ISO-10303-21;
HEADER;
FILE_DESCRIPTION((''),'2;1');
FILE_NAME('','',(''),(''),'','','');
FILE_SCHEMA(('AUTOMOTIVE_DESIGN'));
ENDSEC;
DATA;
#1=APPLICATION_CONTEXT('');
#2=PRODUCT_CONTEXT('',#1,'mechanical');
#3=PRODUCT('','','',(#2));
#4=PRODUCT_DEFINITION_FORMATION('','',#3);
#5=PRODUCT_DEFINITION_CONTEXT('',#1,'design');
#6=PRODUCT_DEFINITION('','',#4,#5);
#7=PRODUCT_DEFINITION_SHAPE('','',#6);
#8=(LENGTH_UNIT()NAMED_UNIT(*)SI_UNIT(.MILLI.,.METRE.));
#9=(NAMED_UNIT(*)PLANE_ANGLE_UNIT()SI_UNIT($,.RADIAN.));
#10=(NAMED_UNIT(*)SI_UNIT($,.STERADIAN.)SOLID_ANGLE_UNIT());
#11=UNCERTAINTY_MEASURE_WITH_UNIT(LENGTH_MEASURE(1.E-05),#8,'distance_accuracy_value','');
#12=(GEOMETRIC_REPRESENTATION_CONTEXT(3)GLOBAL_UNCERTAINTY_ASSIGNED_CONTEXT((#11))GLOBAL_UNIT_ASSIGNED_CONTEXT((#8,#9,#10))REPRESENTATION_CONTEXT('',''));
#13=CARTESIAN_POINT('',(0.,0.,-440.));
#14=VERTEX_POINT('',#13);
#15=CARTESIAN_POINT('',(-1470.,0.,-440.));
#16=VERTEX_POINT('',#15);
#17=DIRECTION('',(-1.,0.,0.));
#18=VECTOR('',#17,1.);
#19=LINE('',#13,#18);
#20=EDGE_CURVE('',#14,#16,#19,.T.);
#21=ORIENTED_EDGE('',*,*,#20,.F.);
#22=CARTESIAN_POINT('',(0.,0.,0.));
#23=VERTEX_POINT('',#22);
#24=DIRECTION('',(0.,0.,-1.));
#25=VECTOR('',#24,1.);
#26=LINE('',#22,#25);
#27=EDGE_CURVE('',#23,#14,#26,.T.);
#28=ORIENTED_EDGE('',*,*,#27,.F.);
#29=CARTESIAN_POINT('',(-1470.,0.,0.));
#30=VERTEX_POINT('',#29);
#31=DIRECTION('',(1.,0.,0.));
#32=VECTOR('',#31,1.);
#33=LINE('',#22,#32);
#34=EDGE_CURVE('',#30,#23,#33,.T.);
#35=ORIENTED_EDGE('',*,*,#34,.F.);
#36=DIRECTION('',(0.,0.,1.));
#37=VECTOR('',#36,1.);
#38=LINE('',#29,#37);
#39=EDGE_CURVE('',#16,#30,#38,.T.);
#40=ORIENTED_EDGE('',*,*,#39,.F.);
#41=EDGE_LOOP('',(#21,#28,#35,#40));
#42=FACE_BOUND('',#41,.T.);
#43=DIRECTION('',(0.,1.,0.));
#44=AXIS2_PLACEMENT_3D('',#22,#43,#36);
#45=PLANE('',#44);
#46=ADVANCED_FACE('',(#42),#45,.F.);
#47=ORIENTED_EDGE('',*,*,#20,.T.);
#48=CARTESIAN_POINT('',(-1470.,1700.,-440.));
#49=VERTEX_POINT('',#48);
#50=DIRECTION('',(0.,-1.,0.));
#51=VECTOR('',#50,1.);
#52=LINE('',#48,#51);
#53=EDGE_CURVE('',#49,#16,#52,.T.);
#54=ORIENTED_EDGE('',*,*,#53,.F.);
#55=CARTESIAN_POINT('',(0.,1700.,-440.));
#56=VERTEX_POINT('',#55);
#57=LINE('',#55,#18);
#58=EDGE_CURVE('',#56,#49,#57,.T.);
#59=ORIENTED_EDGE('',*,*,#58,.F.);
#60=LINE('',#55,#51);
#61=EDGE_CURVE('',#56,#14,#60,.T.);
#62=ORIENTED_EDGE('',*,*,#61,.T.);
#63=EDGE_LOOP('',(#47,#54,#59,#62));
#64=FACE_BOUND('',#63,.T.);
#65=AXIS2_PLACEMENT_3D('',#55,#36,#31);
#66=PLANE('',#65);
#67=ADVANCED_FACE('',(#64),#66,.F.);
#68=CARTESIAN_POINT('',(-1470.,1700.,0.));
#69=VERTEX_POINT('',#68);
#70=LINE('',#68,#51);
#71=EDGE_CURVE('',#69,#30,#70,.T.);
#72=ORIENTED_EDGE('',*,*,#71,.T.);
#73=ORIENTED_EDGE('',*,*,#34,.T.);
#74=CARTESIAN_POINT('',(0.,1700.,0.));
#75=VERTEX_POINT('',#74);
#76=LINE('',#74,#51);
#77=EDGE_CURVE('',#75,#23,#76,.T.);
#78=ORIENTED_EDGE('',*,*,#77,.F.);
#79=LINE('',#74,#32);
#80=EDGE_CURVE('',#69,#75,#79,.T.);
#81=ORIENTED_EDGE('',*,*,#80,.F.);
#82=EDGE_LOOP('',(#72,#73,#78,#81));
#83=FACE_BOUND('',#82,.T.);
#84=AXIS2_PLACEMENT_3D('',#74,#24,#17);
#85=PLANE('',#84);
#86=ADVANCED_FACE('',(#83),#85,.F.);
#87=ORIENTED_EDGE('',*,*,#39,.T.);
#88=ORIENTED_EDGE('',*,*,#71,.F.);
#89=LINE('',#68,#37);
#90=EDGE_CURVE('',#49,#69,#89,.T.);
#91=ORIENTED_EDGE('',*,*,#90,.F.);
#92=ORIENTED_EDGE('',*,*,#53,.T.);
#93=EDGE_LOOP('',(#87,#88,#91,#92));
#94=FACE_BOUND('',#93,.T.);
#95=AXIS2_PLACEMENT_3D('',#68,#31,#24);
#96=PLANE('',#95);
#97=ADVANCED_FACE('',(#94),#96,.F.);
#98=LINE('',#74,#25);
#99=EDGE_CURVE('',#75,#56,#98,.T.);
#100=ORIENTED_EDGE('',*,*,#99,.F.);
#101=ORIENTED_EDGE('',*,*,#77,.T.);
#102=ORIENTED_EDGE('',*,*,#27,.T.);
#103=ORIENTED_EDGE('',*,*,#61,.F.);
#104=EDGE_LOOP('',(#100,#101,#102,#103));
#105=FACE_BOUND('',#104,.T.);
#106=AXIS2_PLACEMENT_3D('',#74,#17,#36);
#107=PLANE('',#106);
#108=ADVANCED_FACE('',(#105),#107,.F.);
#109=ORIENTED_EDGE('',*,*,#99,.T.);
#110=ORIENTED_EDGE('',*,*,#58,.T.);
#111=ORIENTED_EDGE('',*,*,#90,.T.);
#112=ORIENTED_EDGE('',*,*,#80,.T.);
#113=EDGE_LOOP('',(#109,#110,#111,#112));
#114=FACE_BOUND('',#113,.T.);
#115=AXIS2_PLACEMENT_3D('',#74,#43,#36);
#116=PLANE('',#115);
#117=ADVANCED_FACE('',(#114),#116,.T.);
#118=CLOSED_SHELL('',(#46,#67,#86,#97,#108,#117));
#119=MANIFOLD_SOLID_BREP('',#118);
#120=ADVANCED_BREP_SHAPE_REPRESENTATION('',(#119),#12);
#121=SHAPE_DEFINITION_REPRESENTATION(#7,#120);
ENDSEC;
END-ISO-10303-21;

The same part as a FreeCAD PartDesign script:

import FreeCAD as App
import Part
import Sketcher
from FreeCAD import Vector
Q = App.Units.Quantity

doc = App.newDocument("Part")
body = doc.addObject("PartDesign::Body", "Body")

sketch1 = doc.addObject("Sketcher::SketchObject", "Sketch")
body.addObject(sketch1)
sketch1.AttachmentSupport = (doc.XZ_Plane, [""])
sketch1.MapMode = "FlatFace"
sketch1.addGeometry(Part.LineSegment(Vector(-1470, -440, 0), Vector(-1470, 0, 0)), False)
sketch1.addGeometry(Part.LineSegment(Vector(-1470, 0, 0), Vector(0, 0, 0)), False)
sketch1.addGeometry(Part.LineSegment(Vector(0, 0, 0), Vector(0, -440, 0)), False)
sketch1.addGeometry(Part.LineSegment(Vector(0, -440, 0), Vector(-1470, -440, 0)), False)
sketch1.addConstraint(Sketcher.Constraint("Coincident", 0, 2, 1, 1))
sketch1.addConstraint(Sketcher.Constraint("Coincident", 1, 2, 2, 1))
sketch1.addConstraint(Sketcher.Constraint("Coincident", 2, 2, 3, 1))
sketch1.addConstraint(Sketcher.Constraint("Coincident", 3, 2, 0, 1))
sketch1.addConstraint(Sketcher.Constraint("Vertical", 0))
sketch1.addConstraint(Sketcher.Constraint("Horizontal", 1))
sketch1.addConstraint(Sketcher.Constraint("Vertical", 2))
sketch1.addConstraint(Sketcher.Constraint("Horizontal", 3))
sketch1.addConstraint(Sketcher.Constraint("Coincident", 1, 2, -1, 1))
sketch1.addConstraint(Sketcher.Constraint("DistanceX", 1, 1, 1, 2, Q("1470 mm")))
sketch1.addConstraint(Sketcher.Constraint("DistanceY", 0, 1, 0, 2, Q("440 mm")))
pad1 = doc.addObject("PartDesign::Pad", "Pad")
body.addObject(pad1)
pad1.Profile = sketch1
pad1.Length = 1700
pad1.Reversed = True

doc.recompute()
